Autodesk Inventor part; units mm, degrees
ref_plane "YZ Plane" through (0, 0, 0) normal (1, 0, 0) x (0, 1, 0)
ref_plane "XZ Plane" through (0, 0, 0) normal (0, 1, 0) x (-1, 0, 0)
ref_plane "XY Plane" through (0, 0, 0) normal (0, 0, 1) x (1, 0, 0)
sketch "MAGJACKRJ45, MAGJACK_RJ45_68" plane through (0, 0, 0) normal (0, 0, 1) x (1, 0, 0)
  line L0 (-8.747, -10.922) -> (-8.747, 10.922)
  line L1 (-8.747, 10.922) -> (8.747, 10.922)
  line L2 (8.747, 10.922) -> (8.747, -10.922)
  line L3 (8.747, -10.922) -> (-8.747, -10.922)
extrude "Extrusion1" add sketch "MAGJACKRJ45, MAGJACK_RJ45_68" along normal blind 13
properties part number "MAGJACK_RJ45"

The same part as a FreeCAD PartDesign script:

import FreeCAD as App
import Part
import Sketcher

V = App.Vector
Q = App.Units.Quantity


def add_polygon(sketch, points):
    """Adds a closed chain of lines whose ends are joined by coincident constraints."""
    first, n = sketch.GeometryCount, len(points)
    for a, b in zip(points, points[1:] + points[:1]):
        sketch.addGeometry(Part.LineSegment(App.Vector(*a, 0), App.Vector(*b, 0)), False)
    for i in range(n):
        sketch.addConstraint(Sketcher.Constraint("Coincident", first + i, 2, first + (i + 1) % n, 1))

doc = App.newDocument("Part")
params = doc.addObject("Spreadsheet::Sheet", "Params")
for row, (alias, value) in enumerate([
    ("sketch1_height", "0.86 in"),
    ("pad1_length", "0.511811 in"),
], start=1):
    params.set(f"A{row}", alias)
    params.set(f"B{row}", "=" + value)
    params.setAlias(f"B{row}", alias)

body = doc.addObject("PartDesign::Body", "Body")

sketch1 = body.newObject("Sketcher::SketchObject", "Sketch")
sketch1.AttachmentSupport = (doc.getObject("XY_Plane"), [""])
sketch1.MapMode = "FlatFace"
add_polygon(sketch1, [(-9, 11), (-9, -11), (9, -11), (9, 11)])
sketch1.addConstraint(Sketcher.Constraint("Vertical", 0))
sketch1.addConstraint(Sketcher.Constraint("Horizontal", 1))
sketch1.addConstraint(Sketcher.Constraint("Vertical", 2))
sketch1.addConstraint(Sketcher.Constraint("Horizontal", 3))
sketch1.addConstraint(Sketcher.Constraint("Symmetric", 0, 2, 2, 2, -1, 1))
sketch1.addConstraint(Sketcher.Constraint("DistanceY", 0, 2, 0, 1, Q("0.86 in")))
sketch1.addConstraint(Sketcher.Constraint("DistanceX", 1, 1, 1, 2, Q("17.494 mm")))
sketch1.setExpression("Constraints[9]", "Params.sketch1_height")
pad1 = body.newObject("PartDesign::Pad", "Pad")
pad1.Profile = sketch1
pad1.setExpression("Length", "Params.pad1_length")

doc.recompute()
